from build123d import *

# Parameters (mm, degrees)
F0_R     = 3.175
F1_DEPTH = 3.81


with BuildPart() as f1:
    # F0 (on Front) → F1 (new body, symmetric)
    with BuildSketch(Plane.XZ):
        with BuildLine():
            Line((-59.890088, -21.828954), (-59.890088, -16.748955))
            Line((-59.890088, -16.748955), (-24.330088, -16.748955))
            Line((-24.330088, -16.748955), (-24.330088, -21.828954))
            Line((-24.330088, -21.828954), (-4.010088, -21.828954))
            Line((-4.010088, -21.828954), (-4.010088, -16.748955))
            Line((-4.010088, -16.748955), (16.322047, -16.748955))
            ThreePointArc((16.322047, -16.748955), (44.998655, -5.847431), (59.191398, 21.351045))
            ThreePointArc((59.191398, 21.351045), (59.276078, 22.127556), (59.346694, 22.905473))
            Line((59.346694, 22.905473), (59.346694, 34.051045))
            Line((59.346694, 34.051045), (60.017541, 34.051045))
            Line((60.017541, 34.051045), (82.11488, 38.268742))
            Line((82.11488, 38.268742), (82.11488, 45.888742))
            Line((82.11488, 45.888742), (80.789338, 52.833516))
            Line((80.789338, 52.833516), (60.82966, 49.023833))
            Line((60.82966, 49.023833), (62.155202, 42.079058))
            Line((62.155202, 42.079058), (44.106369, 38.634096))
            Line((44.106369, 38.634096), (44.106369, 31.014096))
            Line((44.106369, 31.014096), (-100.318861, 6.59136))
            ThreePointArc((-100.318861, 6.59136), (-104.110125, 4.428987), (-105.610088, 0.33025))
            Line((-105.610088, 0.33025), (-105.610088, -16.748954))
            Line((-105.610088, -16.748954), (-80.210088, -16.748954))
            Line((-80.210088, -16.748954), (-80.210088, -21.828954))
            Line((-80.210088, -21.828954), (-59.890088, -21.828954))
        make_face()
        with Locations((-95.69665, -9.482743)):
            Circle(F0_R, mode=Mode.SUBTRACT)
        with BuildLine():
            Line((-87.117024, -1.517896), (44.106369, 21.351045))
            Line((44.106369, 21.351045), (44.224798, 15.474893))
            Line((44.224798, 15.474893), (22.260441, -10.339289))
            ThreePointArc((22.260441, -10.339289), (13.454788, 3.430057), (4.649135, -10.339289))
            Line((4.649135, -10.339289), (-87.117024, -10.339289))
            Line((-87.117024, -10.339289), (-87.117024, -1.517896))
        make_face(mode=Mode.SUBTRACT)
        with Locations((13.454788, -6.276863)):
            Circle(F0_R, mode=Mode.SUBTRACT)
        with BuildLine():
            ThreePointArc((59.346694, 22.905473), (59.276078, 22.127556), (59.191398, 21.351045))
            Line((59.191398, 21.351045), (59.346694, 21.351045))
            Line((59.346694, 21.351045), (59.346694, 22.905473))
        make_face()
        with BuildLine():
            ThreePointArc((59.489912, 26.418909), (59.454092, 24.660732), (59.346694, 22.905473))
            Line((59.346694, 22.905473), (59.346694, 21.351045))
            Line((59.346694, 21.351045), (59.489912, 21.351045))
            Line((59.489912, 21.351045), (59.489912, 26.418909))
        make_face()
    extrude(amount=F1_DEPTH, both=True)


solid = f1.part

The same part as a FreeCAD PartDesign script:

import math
import FreeCAD as App
import Part
import Sketcher

V = App.Vector
Q = App.Units.Quantity

doc = App.newDocument("Part")
body = doc.addObject("PartDesign::Body", "Body")

sketch1 = body.newObject("Sketcher::SketchObject", "Sketch")
sketch1.AttachmentSupport = (doc.getObject("XZ_Plane"), [""])
sketch1.MapMode = "FlatFace"
sketch1.addGeometry([
    Part.LineSegment(V(-59.890088, -21.828954, 0), V(-59.890088, -16.748955, 0)),
    Part.LineSegment(V(-59.890088, -16.748955, 0), V(-24.330088, -16.748955, 0)),
    Part.LineSegment(V(-24.330088, -16.748955, 0), V(-24.330088, -21.828954, 0)),
    Part.LineSegment(V(-24.330088, -21.828954, 0), V(-4.010088, -21.828954, 0)),
    Part.LineSegment(V(-4.010088, -21.828954, 0), V(-4.010088, -16.748955, 0)),
    Part.LineSegment(V(-4.010088, -16.748955, 0), V(16.322047, -16.748955, 0)),
    Part.ArcOfCircle(Part.Circle(V(16.322049, 26.418907, 0), V(0, 0, 1), 43.167862), math.radians(-90.000002), math.radians(-6.742013)),
    Part.LineSegment(V(59.191398, 21.351045, 0), V(59.489912, 21.351045, 0)),
    Part.LineSegment(V(59.489912, 21.351045, 0), V(59.489912, 26.418909, 0)),
    Part.ArcOfCircle(Part.Circle(V(16.321586, 26.41894, 0), V(0, 0, 1), 43.168326), math.radians(-4.668464), math.radians(-0.000041)),
    Part.LineSegment(V(59.346694, 22.905473, 0), V(59.346694, 34.051045, 0)),
    Part.LineSegment(V(59.346694, 34.051045, 0), V(60.017541, 34.051045, 0)),
    Part.LineSegment(V(60.017541, 34.051045, 0), V(82.11488, 38.268742, 0)),
    Part.LineSegment(V(82.11488, 38.268742, 0), V(82.11488, 45.888742, 0)),
    Part.LineSegment(V(82.11488, 45.888742, 0), V(80.789338, 52.833516, 0)),
    Part.LineSegment(V(80.789338, 52.833516, 0), V(60.82966, 49.023833, 0)),
    Part.LineSegment(V(60.82966, 49.023833, 0), V(62.155202, 42.079058, 0)),
    Part.LineSegment(V(62.155202, 42.079058, 0), V(44.106369, 38.634096, 0)),
    Part.LineSegment(V(44.106369, 38.634096, 0), V(44.106369, 31.014096, 0)),
    Part.LineSegment(V(44.106369, 31.014096, 0), V(-100.318861, 6.59136, 0)),
    Part.ArcOfCircle(Part.Circle(V(-99.260089, 0.330251, 0), V(0, 0, 1), 6.349999), math.radians(99.598082), math.radians(180.000008)),
    Part.LineSegment(V(-105.610088, 0.33025, 0), V(-105.610088, -16.748954, 0)),
    Part.LineSegment(V(-105.610088, -16.748954, 0), V(-80.210088, -16.748954, 0)),
    Part.LineSegment(V(-80.210088, -16.748954, 0), V(-80.210088, -21.828954, 0)),
    Part.LineSegment(V(-80.210088, -21.828954, 0), V(-59.890088, -21.828954, 0)),
    Part.Circle(V(-95.69665, -9.482743, 0), V(0, 0, 1), 3.175),
    Part.Circle(V(13.454788, -6.276863, 0), V(0, 0, 1), 3.175),
    Part.LineSegment(V(-87.117024, -10.339289, 0), V(-87.117024, -1.517896, 0)),
    Part.LineSegment(V(-87.117024, -1.517896, 0), V(44.106369, 21.351045, 0)),
    Part.LineSegment(V(44.106369, 21.351045, 0), V(44.224798, 15.474893, 0)),
    Part.LineSegment(V(44.224798, 15.474893, 0), V(22.260441, -10.339289, 0)),
    Part.ArcOfCircle(Part.Circle(V(13.454788, -6.270274, 0), V(0, 0, 1), 9.700331), math.radians(-24.801247), math.radians(204.801247)),
    Part.LineSegment(V(4.649135, -10.339289, 0), V(-87.117024, -10.339289, 0)),
], False)
sketch1.addConstraint([
    Sketcher.Constraint("Coincident", 0, 2, 1, 1),
    Sketcher.Constraint("Coincident", 1, 2, 2, 1),
    Sketcher.Constraint("Coincident", 2, 2, 3, 1),
    Sketcher.Constraint("Coincident", 3, 2, 4, 1),
    Sketcher.Constraint("Coincident", 4, 2, 5, 1),
    Sketcher.Constraint("Coincident", 5, 2, 6, 1),
    Sketcher.Constraint("Coincident", 6, 2, 7, 1),
    Sketcher.Constraint("Coincident", 7, 2, 8, 1),
    Sketcher.Constraint("Coincident", 8, 2, 9, 2),
    Sketcher.Constraint("Coincident", 9, 1, 10, 1),
    Sketcher.Constraint("Coincident", 10, 2, 11, 1),
    Sketcher.Constraint("Coincident", 11, 2, 12, 1),
    Sketcher.Constraint("Coincident", 12, 2, 13, 1),
    Sketcher.Constraint("Coincident", 13, 2, 14, 1),
    Sketcher.Constraint("Coincident", 14, 2, 15, 1),
    Sketcher.Constraint("Coincident", 15, 2, 16, 1),
    Sketcher.Constraint("Coincident", 16, 2, 17, 1),
    Sketcher.Constraint("Coincident", 17, 2, 18, 1),
    Sketcher.Constraint("Coincident", 18, 2, 19, 1),
    Sketcher.Constraint("Coincident", 19, 2, 20, 1),
    Sketcher.Constraint("Coincident", 20, 2, 21, 1),
    Sketcher.Constraint("Coincident", 21, 2, 22, 1),
    Sketcher.Constraint("Coincident", 22, 2, 23, 1),
    Sketcher.Constraint("Coincident", 23, 2, 24, 1),
    Sketcher.Constraint("Coincident", 24, 2, 0, 1),
    Sketcher.Constraint("Coincident", 27, 2, 28, 1),
    Sketcher.Constraint("Coincident", 28, 2, 29, 1),
    Sketcher.Constraint("Coincident", 29, 2, 30, 1),
    Sketcher.Constraint("Coincident", 30, 2, 31, 1),
    Sketcher.Constraint("Coincident", 31, 2, 32, 1),
    Sketcher.Constraint("Coincident", 32, 2, 27, 1),
    Sketcher.Constraint("Vertical", 0),
    Sketcher.Constraint("Horizontal", 1),
    Sketcher.Constraint("Vertical", 2),
    Sketcher.Constraint("Horizontal", 3),
    Sketcher.Constraint("Vertical", 4),
    Sketcher.Constraint("Horizontal", 5),
    Sketcher.Constraint("Horizontal", 7),
    Sketcher.Constraint("Vertical", 8),
    Sketcher.Constraint("Vertical", 10),
    Sketcher.Constraint("Horizontal", 11),
    Sketcher.Constraint("Vertical", 13),
    Sketcher.Constraint("Vertical", 18),
    Sketcher.Constraint("Vertical", 21),
    Sketcher.Constraint("Horizontal", 22),
    Sketcher.Constraint("Vertical", 23),
    Sketcher.Constraint("Horizontal", 24),
    Sketcher.Constraint("Vertical", 27),
    Sketcher.Constraint("Horizontal", 32),
    Sketcher.Constraint("Diameter", 25, Q("0.25 in")),
    Sketcher.Constraint("Diameter", 26, Q("0.25 in")),
    Sketcher.Constraint("DistanceX", 22, 1, 22, 2, Q("1 in")),
    Sketcher.Constraint("Radius", 20, Q("0.25 in")),
    Sketcher.Constraint("DistanceX", 1, 1, 1, 2, Q("1.4 in")),
    Sketcher.Constraint("DistanceX", 3, 1, 3, 2, Q("0.8 in")),
    Sketcher.Constraint("DistanceX", 24, 1, 24, 2, Q("0.8 in")),
    Sketcher.Constraint("DistanceY", 0, 1, 0, 2, Q("0.2 in")),
    Sketcher.Constraint("DistanceY", 2, 2, 2, 1, Q("0.2 in")),
    Sketcher.Constraint("DistanceY", 4, 1, 4, 2, Q("0.2 in")),
    Sketcher.Constraint("DistanceY", 13, 1, 13, 2, Q("0.3 in")),
    Sketcher.Constraint("DistanceY", 18, 2, 18, 1, Q("0.3 in")),
    Sketcher.Constraint("DistanceY", 23, 2, 23, 1, Q("0.2 in")),
    Sketcher.Constraint("Distance", 15, Q("0.8 in")),
    Sketcher.Constraint("DistanceY", 5, 2, 6, 2, Q("1.5 in")),
    Sketcher.Constraint("DistanceY", 7, 2, 10, 2, Q("0.5 in")),
    Sketcher.Constraint("Radius", 31, Q("9.700331 mm")),
    Sketcher.Constraint("Radius", 6, Q("43.167862 mm")),
    Sketcher.Constraint("Radius", 9, Q("43.168326 mm")),
    Sketcher.Constraint("DistanceX", 32, 2, 32, 1, Q("91.766159 mm")),
    Sketcher.Constraint("DistanceX", 25, 3, 6, 3, Q("112.018699 mm")),
    Sketcher.Constraint("DistanceX", 26, 3, 9, 3, Q("2.866798 mm")),
    Sketcher.Constraint("DistanceX", 31, 3, 9, 3, Q("2.866798 mm")),
    Sketcher.Constraint("DistanceX", 29, 2, 6, 2, Q("14.9666 mm")),
    Sketcher.Constraint("Distance", 17, Q("18.37466 mm")),
    Sketcher.Constraint("Distance", 28, Q("133.201229 mm")),
    Sketcher.Constraint("DistanceX", 5, 1, 5, 2, Q("20.332135 mm")),
    Sketcher.Constraint("DistanceX", 7, 1, 7, 2, Q("0.298514 mm")),
    Sketcher.Constraint("DistanceX", 11, 1, 11, 2, Q("0.670847 mm")),
    Sketcher.Constraint("DistanceY", 8, 1, 8, 2, Q("5.067864 mm")),
    Sketcher.Constraint("DistanceY", 10, 1, 10, 2, Q("11.145572 mm")),
    Sketcher.Constraint("DistanceY", 21, 2, 21, 1, Q("17.079204 mm")),
    Sketcher.Constraint("DistanceY", 27, 1, 27, 2, Q("8.821393 mm")),
    Sketcher.Constraint("DistanceX", -1, 1, 6, 3, Q("16.322049 mm")),
    Sketcher.Constraint("DistanceY", -1, 1, 9, 3, Q("26.41894 mm")),
    Sketcher.Constraint("DistanceX", 20, 3, -1, 1, Q("99.260089 mm")),
    Sketcher.Constraint("DistanceY", -1, 1, 20, 3, Q("0.330251 mm")),
    Sketcher.Constraint("DistanceY", -1, 1, 8, 2, Q("26.418909 mm")),
    Sketcher.Constraint("DistanceX", -1, 1, 12, 2, Q("82.11488 mm")),
    Sketcher.Constraint("DistanceX", -1, 1, 14, 2, Q("80.789338 mm")),
    Sketcher.Constraint("DistanceX", -1, 1, 15, 2, Q("60.82966 mm")),
    Sketcher.Constraint("DistanceY", -1, 1, 16, 2, Q("42.079058 mm")),
    Sketcher.Constraint("DistanceX", -1, 1, 17, 2, Q("44.106369 mm")),
    Sketcher.Constraint("DistanceX", 19, 2, -1, 1, Q("100.318861 mm")),
    Sketcher.Constraint("DistanceX", -1, 1, 28, 2, Q("44.106369 mm")),
    Sketcher.Constraint("DistanceX", -1, 1, 30, 2, Q("22.260441 mm")),
    Sketcher.Constraint("DistanceY", 30, 2, -1, 1, Q("10.339289 mm")),
    Sketcher.Constraint("DistanceY", 31, 2, -1, 1, Q("10.339289 mm")),
    Sketcher.Constraint("DistanceY", 25, 3, 6, 3, Q("35.90165 mm")),
    Sketcher.Constraint("DistanceY", 26, 3, 6, 3, Q("32.69577 mm")),
    Sketcher.Constraint("DistanceY", 9, 1, 12, 2, Q("15.363269 mm")),
    Sketcher.Constraint("DistanceY", 11, 2, 14, 2, Q("18.782471 mm")),
    Sketcher.Constraint("DistanceX", 11, 2, 16, 2, Q("2.137661 mm")),
    Sketcher.Constraint("DistanceY", 29, 2, 28, 2, Q("5.876152 mm")),
])
pad1 = body.newObject("PartDesign::Pad", "Pad")
pad1.Profile = sketch1
pad1.Length = Q("0.3 in")
pad1.Midplane = True

doc.recompute()
